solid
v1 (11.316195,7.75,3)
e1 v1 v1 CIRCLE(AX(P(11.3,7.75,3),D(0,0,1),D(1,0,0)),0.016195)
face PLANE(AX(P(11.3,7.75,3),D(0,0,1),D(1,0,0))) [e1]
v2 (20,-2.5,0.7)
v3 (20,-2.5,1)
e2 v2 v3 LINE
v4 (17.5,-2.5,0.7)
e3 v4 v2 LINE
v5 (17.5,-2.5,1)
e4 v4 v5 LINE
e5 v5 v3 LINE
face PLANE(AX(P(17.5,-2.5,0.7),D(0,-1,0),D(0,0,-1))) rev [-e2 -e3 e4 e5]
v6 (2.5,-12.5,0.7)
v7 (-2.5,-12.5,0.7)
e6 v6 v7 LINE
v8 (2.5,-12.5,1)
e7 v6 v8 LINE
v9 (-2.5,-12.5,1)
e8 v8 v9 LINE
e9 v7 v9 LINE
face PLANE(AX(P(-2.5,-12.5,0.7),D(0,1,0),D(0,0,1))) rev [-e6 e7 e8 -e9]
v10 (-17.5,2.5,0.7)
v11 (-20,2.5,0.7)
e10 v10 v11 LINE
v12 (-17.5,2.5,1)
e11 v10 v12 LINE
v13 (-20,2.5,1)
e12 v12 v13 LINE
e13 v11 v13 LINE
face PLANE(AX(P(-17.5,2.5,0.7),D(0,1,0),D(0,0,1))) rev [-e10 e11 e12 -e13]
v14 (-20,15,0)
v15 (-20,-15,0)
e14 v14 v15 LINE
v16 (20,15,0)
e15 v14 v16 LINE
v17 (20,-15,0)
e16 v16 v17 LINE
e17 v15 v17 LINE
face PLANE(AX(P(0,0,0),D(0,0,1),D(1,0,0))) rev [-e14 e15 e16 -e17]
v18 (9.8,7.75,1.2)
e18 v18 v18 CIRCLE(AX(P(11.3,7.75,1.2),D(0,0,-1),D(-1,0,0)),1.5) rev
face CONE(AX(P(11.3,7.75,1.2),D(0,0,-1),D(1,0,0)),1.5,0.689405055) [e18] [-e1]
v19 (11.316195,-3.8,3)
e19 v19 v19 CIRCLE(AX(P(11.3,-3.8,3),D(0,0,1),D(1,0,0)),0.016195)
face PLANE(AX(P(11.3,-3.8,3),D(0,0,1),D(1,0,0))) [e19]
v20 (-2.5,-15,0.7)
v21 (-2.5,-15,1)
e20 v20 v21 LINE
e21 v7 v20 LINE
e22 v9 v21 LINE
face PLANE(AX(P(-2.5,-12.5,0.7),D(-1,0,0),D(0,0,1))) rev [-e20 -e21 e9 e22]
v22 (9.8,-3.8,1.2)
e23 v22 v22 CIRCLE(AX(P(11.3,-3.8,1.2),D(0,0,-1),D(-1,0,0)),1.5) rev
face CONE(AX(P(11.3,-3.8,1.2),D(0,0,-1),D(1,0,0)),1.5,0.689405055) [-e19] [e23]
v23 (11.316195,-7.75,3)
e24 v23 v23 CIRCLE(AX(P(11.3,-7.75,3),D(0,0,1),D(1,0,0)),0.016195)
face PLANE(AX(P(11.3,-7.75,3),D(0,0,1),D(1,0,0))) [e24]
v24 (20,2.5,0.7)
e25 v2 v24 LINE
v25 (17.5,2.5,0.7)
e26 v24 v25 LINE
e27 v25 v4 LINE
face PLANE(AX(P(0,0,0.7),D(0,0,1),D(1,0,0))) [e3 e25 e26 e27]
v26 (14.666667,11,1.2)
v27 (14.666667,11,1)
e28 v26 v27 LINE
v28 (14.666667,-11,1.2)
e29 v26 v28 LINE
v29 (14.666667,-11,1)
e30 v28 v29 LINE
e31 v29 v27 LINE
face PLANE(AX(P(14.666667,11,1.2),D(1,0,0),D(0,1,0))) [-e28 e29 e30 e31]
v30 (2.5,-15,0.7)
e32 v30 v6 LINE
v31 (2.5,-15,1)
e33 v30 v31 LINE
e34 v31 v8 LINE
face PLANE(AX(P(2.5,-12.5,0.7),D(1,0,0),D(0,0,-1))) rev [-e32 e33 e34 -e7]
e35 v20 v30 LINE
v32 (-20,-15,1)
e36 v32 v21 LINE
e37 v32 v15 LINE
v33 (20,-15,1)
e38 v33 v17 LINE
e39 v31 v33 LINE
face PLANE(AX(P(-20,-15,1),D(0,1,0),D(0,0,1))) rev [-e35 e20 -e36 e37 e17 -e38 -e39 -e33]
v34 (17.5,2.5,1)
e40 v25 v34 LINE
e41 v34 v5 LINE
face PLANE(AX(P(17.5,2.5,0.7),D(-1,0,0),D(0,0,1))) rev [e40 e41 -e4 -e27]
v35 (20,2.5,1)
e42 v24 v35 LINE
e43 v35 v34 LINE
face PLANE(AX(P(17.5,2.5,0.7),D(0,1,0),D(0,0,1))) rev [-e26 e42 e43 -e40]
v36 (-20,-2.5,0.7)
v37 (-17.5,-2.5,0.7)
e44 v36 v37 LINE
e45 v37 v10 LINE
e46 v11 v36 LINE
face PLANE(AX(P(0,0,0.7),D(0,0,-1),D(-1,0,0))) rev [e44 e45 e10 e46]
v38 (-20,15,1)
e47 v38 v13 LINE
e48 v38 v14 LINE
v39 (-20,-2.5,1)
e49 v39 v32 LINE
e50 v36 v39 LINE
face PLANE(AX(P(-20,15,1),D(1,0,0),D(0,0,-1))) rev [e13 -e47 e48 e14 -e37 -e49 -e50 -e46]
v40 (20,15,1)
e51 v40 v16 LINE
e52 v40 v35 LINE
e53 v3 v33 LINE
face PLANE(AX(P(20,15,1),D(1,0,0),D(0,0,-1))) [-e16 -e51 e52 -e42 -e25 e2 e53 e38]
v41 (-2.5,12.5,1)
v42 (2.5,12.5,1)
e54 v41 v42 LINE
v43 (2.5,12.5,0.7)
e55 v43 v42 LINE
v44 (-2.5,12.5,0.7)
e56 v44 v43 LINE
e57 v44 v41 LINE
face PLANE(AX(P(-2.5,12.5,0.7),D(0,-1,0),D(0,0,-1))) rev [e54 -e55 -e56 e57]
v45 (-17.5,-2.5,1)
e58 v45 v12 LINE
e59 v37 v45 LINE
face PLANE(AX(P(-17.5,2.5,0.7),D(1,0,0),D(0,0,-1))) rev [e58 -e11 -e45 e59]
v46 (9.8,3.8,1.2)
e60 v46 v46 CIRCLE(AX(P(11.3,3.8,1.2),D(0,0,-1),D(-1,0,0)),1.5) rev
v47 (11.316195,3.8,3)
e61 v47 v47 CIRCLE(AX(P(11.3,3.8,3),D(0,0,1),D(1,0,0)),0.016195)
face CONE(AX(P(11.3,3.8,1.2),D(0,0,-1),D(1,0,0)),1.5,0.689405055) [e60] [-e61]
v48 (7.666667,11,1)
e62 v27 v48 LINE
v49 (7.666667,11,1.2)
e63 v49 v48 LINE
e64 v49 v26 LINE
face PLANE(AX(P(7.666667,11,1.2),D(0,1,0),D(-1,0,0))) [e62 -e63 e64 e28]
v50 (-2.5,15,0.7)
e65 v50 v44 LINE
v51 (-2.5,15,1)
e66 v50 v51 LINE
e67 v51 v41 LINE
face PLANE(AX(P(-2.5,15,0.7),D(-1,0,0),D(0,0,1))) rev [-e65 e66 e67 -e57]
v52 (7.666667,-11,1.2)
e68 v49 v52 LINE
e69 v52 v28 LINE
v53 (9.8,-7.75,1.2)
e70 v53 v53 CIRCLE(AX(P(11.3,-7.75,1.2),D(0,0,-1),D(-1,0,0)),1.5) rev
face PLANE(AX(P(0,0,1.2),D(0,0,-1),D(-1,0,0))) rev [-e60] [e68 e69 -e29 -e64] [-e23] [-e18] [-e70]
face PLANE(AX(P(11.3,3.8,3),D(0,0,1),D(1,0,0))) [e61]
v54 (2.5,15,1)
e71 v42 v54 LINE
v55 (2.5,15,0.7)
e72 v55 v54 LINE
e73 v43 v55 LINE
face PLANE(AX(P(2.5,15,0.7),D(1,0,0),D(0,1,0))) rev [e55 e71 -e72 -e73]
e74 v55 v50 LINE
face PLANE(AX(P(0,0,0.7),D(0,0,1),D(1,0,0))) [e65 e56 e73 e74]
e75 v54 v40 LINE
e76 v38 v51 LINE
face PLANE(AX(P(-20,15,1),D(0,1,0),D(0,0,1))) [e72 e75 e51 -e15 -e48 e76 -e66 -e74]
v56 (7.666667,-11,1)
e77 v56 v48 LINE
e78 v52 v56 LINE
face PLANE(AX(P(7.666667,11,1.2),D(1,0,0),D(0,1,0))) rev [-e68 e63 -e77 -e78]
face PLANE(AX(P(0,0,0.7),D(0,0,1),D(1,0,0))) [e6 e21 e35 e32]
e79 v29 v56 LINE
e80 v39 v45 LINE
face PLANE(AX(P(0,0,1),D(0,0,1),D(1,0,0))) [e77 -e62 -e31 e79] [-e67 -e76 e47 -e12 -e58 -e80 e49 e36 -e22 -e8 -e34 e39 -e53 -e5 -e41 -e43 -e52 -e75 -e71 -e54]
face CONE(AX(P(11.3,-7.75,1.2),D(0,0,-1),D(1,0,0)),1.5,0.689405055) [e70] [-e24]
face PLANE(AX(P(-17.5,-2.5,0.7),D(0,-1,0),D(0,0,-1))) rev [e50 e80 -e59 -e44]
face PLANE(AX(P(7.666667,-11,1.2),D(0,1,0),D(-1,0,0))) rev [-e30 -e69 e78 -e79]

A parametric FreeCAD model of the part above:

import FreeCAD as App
import Part
import Sketcher


def add_polygon(sketch, points):
    """Adds a closed chain of lines whose ends are joined by coincident constraints."""
    first, n = sketch.GeometryCount, len(points)
    for a, b in zip(points, points[1:] + points[:1]):
        sketch.addGeometry(Part.LineSegment(App.Vector(*a, 0), App.Vector(*b, 0)), False)
    for i in range(n):
        sketch.addConstraint(Sketcher.Constraint("Coincident", first + i, 2, first + (i + 1) % n, 1))

doc = App.newDocument("Part")
body = doc.addObject("PartDesign::Body", "Body")

# Sketch on XY plane
sketch1 = body.newObject("Sketcher::SketchObject", "Sketch")
sketch1.AttachmentSupport = (doc.getObject("XY_Plane"), [""])
sketch1.MapMode = "FlatFace"
add_polygon(sketch1, [(-20, 15), (-20, -15), (20, -15), (20, 15)])  # lines 0-3
sketch1.addConstraint([
    Sketcher.Constraint("Vertical", 0),
    Sketcher.Constraint("Horizontal", 1),
    Sketcher.Constraint("Vertical", 2),
    Sketcher.Constraint("Horizontal", 3),
    Sketcher.Constraint("Symmetric", 0, 2, 2, 2, -1, 1),
    Sketcher.Constraint("DistanceX", 1, 1, 1, 2, 40.0),
    Sketcher.Constraint("DistanceY", 0, 2, 0, 1, 30.0),
])
pad1 = body.newObject("PartDesign::Pad", "Pad")
pad1.Profile = sketch1
pad1.Length = 1

# Sketch on XY plane
sketch2 = body.newObject("Sketcher::SketchObject", "Sketch001")
sketch2.AttachmentSupport = (doc.getObject("XY_Plane"), [""])
sketch2.MapMode = "FlatFace"
add_polygon(sketch2, [(7.666667, 11), (7.666667, -11), (14.666667, -11), (14.666667, 11)])  # lines 0-3
sketch2.addConstraint([
    Sketcher.Constraint("Vertical", 0),
    Sketcher.Constraint("Horizontal", 1),
    Sketcher.Constraint("Vertical", 2),
    Sketcher.Constraint("Horizontal", 3),
    Sketcher.Constraint("DistanceX", 1, 1, 1, 2, 7.0),
    Sketcher.Constraint("DistanceY", 0, 2, 0, 1, 22.0),
    Sketcher.Constraint("DistanceY", 0, 2, -1, 1, 11.0),
    Sketcher.Constraint("DistanceX", -1, 1, 0, 2, 7.666667),
])
pad2 = body.newObject("PartDesign::Pad", "Pad001")
pad2.Profile = sketch2
pad2.Length = 1.2

# Sketch on XY plane
sketch3 = body.newObject("Sketcher::SketchObject", "Sketch002")
sketch3.AttachmentSupport = (doc.getObject("XY_Plane"), [""])
sketch3.MapMode = "FlatFace"
sketch3.AttachmentOffset = App.Placement(App.Vector(0, 0, 1), App.Rotation())
add_polygon(sketch3, [(-2.5, -12.5), (-2.5, -15), (2.5, -15), (2.5, -12.5)])  # lines 0-3
add_polygon(sketch3, [(-20, 2.5), (-20, -2.5), (-17.5, -2.5), (-17.5, 2.5)])  # lines 4-7
add_polygon(sketch3, [(17.5, 2.5), (17.5, -2.5), (20, -2.5), (20, 2.5)])  # lines 8-11
add_polygon(sketch3, [(-2.5, 15), (-2.5, 12.5), (2.5, 12.5), (2.5, 15)])  # lines 12-15
sketch3.addConstraint([
    Sketcher.Constraint("Vertical", 0),
    Sketcher.Constraint("Horizontal", 1),
    Sketcher.Constraint("Vertical", 2),
    Sketcher.Constraint("Horizontal", 3),
    Sketcher.Constraint("Vertical", 4),
    Sketcher.Constraint("Horizontal", 5),
    Sketcher.Constraint("Vertical", 6),
    Sketcher.Constraint("Horizontal", 7),
    Sketcher.Constraint("Vertical", 8),
    Sketcher.Constraint("Horizontal", 9),
    Sketcher.Constraint("Vertical", 10),
    Sketcher.Constraint("Horizontal", 11),
    Sketcher.Constraint("Vertical", 12),
    Sketcher.Constraint("Horizontal", 13),
    Sketcher.Constraint("Vertical", 14),
    Sketcher.Constraint("Horizontal", 15),
    Sketcher.Constraint("Symmetric", 6, 2, 8, 2, -1, 1),
    Sketcher.Constraint("Symmetric", 4, 2, 10, 2, -1, 1),
    Sketcher.Constraint("Symmetric", 2, 2, 12, 2, -1, 1),
    Sketcher.Constraint("Symmetric", 0, 2, 14, 2, -1, 1),
    Sketcher.Constraint("Horizontal", 5, 2, 8, 2),
    Sketcher.Constraint("Vertical", 3, 2, 12, 2),
    Sketcher.Constraint("Equal", 11, 0),
    Sketcher.Constraint("Equal", 15, 4),
    Sketcher.Constraint("DistanceX", 1, 1, 1, 2, 5.0),
    Sketcher.Constraint("DistanceX", 5, 1, 5, 2, 2.5),
    Sketcher.Constraint("DistanceY", 0, 2, -1, 1, 15.0),
    Sketcher.Constraint("DistanceX", 4, 2, -1, 1, 20.0),
])
pocket1 = body.newObject("PartDesign::Pocket", "Pocket")
pocket1.Profile = sketch3
pocket1.Length = 0.3

# Sketch on XY plane
sketch4 = body.newObject("Sketcher::SketchObject", "Sketch003")
sketch4.AttachmentSupport = (doc.getObject("XY_Plane"), [""])
sketch4.MapMode = "FlatFace"
sketch4.AttachmentOffset = App.Placement(App.Vector(0, 0, 1.2), App.Rotation())
sketch4.addGeometry([
    Part.Circle(App.Vector(11.3, -7.75, 0), App.Vector(0, 0, 1), 1.5),
    Part.Circle(App.Vector(11.3, -3.8, 0), App.Vector(0, 0, 1), 1.5),
    Part.Circle(App.Vector(11.3, 3.8, 0), App.Vector(0, 0, 1), 1.5),
    Part.Circle(App.Vector(11.3, 7.75, 0), App.Vector(0, 0, 1), 1.5),
], False)
sketch4.addConstraint([
    Sketcher.Constraint("Equal", 0, 1),
    Sketcher.Constraint("Equal", 1, 2),
    Sketcher.Constraint("Equal", 2, 3),
    Sketcher.Constraint("Symmetric", 1, 3, 2, 3, -1),
    Sketcher.Constraint("Symmetric", 0, 3, 3, 3, -1),
    Sketcher.Constraint("Vertical", 0, 3, 1, 3),
    Sketcher.Constraint("Diameter", 0, 3.0),
    Sketcher.Constraint("DistanceX", -1, 1, 0, 3, 11.3),
    Sketcher.Constraint("DistanceY", 1, 3, -1, 1, 3.8),
    Sketcher.Constraint("DistanceY", 0, 3, 3, 3, 15.5),
])
pad3 = body.newObject("PartDesign::Pad", "Pad002")
pad3.Profile = sketch4
pad3.Length = 1.8
pad3.TaperAngle = -39.5

doc.recompute()
